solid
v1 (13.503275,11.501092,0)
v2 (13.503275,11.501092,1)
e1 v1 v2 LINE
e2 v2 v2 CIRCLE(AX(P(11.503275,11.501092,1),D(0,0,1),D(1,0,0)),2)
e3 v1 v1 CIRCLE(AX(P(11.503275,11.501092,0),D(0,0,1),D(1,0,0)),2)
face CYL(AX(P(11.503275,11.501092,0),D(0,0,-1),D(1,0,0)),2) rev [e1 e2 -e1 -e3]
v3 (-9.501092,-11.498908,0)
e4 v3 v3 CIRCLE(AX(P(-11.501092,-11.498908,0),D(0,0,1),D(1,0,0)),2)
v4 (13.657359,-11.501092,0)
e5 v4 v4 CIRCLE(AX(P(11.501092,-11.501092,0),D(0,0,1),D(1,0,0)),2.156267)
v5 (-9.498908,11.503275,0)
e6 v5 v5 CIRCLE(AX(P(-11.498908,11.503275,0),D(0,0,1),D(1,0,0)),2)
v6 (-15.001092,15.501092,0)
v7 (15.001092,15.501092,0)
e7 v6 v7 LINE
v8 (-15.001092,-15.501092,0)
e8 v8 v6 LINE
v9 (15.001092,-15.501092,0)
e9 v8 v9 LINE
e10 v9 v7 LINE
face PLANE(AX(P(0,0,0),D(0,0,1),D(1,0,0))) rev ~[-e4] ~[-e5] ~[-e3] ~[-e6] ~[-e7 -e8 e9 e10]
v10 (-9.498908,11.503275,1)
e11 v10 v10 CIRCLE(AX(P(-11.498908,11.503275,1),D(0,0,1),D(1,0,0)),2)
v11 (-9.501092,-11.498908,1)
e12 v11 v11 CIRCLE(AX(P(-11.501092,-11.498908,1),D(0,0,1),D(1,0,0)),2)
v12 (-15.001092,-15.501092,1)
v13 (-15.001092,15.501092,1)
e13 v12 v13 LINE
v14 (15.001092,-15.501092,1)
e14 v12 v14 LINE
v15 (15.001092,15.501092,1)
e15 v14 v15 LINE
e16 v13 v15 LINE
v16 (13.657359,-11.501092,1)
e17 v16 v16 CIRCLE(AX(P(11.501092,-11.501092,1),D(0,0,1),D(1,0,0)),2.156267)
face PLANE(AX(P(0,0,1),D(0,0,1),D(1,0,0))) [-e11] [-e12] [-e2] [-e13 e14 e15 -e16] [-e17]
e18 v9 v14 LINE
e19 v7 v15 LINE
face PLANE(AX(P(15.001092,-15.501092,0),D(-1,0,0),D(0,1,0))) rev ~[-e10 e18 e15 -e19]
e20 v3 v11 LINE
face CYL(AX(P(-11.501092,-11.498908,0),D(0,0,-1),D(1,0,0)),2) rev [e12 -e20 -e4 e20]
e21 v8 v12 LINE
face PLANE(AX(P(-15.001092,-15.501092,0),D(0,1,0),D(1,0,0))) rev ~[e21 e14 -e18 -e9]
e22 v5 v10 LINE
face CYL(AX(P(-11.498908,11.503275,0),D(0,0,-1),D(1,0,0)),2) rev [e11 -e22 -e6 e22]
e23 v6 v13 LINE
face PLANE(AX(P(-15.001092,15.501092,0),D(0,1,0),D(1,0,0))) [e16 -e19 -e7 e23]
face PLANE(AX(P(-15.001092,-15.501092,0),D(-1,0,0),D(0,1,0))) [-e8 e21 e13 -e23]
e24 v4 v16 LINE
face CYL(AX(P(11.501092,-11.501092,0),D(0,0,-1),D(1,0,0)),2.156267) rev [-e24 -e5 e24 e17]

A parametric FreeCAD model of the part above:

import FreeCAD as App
import Part
import Sketcher

V = App.Vector


def add_polygon(sketch, points):
    """Adds a closed chain of lines whose ends are joined by coincident constraints."""
    first, n = sketch.GeometryCount, len(points)
    for a, b in zip(points, points[1:] + points[:1]):
        sketch.addGeometry(Part.LineSegment(App.Vector(*a, 0), App.Vector(*b, 0)), False)
    for i in range(n):
        sketch.addConstraint(Sketcher.Constraint("Coincident", first + i, 2, first + (i + 1) % n, 1))

doc = App.newDocument("Part")
body = doc.addObject("PartDesign::Body", "Body")

# Sketch on XY plane
sketch1 = body.newObject("Sketcher::SketchObject", "Sketch")
sketch1.AttachmentSupport = (doc.getObject("XY_Plane"), [""])
sketch1.MapMode = "FlatFace"
add_polygon(sketch1, [(-15.001092, 15.501092), (-15.001092, -15.501092), (15.001092, -15.501092), (15.001092, 15.501092)])  # lines 0-3
sketch1.addGeometry(Part.Circle(V(-11.501092, -11.498908, 0), V(0, 0, 1), 2), False)  # 4
sketch1.addGeometry(Part.Circle(V(11.501092, -11.501092, 0), V(0, 0, 1), 2.156267), False)  # 5
sketch1.addGeometry(Part.Circle(V(-11.498908, 11.503275, 0), V(0, 0, 1), 2), False)  # 6
sketch1.addGeometry(Part.Circle(V(11.503275, 11.501092, 0), V(0, 0, 1), 2), False)  # 7
sketch1.addConstraint(Sketcher.Constraint("Vertical", 0))
sketch1.addConstraint(Sketcher.Constraint("Horizontal", 1))
sketch1.addConstraint(Sketcher.Constraint("Vertical", 2))
sketch1.addConstraint(Sketcher.Constraint("Horizontal", 3))
sketch1.addConstraint(Sketcher.Constraint("Equal", 4, 6))
sketch1.addConstraint(Sketcher.Constraint("Equal", 6, 7))
sketch1.addConstraint(Sketcher.Constraint("Symmetric", 0, 2, 2, 2, -1, 1))
sketch1.addConstraint(Sketcher.Constraint("Diameter", 4, 4.0))
sketch1.addConstraint(Sketcher.Constraint("DistanceX", 6, 3, 5, 3, 23.0))
sketch1.addConstraint(Sketcher.Constraint("DistanceY", 4, 3, 7, 3, 23.0))
sketch1.addConstraint(Sketcher.Constraint("DistanceY", 0, 2, 5, 3, 4.0))
sketch1.addConstraint(Sketcher.Constraint("DistanceY", 7, 3, 2, 2, 4.0))
sketch1.addConstraint(Sketcher.Constraint("DistanceX", 0, 2, 4, 3, 3.5))
sketch1.addConstraint(Sketcher.Constraint("DistanceX", 5, 3, 1, 2, 3.5))
sketch1.addConstraint(Sketcher.Constraint("Diameter", 5, 4.312534))
sketch1.addConstraint(Sketcher.Constraint("DistanceX", 1, 1, 1, 2, 30.002183))
sketch1.addConstraint(Sketcher.Constraint("DistanceY", 0, 2, 0, 1, 31.002183))
sketch1.addConstraint(Sketcher.Constraint("DistanceY", -1, 1, 6, 3, 11.503275))
sketch1.addConstraint(Sketcher.Constraint("DistanceX", -1, 1, 7, 3, 11.503275))
pad1 = body.newObject("PartDesign::Pad", "Pad")
pad1.Profile = sketch1
pad1.Length = 1

doc.recompute()
